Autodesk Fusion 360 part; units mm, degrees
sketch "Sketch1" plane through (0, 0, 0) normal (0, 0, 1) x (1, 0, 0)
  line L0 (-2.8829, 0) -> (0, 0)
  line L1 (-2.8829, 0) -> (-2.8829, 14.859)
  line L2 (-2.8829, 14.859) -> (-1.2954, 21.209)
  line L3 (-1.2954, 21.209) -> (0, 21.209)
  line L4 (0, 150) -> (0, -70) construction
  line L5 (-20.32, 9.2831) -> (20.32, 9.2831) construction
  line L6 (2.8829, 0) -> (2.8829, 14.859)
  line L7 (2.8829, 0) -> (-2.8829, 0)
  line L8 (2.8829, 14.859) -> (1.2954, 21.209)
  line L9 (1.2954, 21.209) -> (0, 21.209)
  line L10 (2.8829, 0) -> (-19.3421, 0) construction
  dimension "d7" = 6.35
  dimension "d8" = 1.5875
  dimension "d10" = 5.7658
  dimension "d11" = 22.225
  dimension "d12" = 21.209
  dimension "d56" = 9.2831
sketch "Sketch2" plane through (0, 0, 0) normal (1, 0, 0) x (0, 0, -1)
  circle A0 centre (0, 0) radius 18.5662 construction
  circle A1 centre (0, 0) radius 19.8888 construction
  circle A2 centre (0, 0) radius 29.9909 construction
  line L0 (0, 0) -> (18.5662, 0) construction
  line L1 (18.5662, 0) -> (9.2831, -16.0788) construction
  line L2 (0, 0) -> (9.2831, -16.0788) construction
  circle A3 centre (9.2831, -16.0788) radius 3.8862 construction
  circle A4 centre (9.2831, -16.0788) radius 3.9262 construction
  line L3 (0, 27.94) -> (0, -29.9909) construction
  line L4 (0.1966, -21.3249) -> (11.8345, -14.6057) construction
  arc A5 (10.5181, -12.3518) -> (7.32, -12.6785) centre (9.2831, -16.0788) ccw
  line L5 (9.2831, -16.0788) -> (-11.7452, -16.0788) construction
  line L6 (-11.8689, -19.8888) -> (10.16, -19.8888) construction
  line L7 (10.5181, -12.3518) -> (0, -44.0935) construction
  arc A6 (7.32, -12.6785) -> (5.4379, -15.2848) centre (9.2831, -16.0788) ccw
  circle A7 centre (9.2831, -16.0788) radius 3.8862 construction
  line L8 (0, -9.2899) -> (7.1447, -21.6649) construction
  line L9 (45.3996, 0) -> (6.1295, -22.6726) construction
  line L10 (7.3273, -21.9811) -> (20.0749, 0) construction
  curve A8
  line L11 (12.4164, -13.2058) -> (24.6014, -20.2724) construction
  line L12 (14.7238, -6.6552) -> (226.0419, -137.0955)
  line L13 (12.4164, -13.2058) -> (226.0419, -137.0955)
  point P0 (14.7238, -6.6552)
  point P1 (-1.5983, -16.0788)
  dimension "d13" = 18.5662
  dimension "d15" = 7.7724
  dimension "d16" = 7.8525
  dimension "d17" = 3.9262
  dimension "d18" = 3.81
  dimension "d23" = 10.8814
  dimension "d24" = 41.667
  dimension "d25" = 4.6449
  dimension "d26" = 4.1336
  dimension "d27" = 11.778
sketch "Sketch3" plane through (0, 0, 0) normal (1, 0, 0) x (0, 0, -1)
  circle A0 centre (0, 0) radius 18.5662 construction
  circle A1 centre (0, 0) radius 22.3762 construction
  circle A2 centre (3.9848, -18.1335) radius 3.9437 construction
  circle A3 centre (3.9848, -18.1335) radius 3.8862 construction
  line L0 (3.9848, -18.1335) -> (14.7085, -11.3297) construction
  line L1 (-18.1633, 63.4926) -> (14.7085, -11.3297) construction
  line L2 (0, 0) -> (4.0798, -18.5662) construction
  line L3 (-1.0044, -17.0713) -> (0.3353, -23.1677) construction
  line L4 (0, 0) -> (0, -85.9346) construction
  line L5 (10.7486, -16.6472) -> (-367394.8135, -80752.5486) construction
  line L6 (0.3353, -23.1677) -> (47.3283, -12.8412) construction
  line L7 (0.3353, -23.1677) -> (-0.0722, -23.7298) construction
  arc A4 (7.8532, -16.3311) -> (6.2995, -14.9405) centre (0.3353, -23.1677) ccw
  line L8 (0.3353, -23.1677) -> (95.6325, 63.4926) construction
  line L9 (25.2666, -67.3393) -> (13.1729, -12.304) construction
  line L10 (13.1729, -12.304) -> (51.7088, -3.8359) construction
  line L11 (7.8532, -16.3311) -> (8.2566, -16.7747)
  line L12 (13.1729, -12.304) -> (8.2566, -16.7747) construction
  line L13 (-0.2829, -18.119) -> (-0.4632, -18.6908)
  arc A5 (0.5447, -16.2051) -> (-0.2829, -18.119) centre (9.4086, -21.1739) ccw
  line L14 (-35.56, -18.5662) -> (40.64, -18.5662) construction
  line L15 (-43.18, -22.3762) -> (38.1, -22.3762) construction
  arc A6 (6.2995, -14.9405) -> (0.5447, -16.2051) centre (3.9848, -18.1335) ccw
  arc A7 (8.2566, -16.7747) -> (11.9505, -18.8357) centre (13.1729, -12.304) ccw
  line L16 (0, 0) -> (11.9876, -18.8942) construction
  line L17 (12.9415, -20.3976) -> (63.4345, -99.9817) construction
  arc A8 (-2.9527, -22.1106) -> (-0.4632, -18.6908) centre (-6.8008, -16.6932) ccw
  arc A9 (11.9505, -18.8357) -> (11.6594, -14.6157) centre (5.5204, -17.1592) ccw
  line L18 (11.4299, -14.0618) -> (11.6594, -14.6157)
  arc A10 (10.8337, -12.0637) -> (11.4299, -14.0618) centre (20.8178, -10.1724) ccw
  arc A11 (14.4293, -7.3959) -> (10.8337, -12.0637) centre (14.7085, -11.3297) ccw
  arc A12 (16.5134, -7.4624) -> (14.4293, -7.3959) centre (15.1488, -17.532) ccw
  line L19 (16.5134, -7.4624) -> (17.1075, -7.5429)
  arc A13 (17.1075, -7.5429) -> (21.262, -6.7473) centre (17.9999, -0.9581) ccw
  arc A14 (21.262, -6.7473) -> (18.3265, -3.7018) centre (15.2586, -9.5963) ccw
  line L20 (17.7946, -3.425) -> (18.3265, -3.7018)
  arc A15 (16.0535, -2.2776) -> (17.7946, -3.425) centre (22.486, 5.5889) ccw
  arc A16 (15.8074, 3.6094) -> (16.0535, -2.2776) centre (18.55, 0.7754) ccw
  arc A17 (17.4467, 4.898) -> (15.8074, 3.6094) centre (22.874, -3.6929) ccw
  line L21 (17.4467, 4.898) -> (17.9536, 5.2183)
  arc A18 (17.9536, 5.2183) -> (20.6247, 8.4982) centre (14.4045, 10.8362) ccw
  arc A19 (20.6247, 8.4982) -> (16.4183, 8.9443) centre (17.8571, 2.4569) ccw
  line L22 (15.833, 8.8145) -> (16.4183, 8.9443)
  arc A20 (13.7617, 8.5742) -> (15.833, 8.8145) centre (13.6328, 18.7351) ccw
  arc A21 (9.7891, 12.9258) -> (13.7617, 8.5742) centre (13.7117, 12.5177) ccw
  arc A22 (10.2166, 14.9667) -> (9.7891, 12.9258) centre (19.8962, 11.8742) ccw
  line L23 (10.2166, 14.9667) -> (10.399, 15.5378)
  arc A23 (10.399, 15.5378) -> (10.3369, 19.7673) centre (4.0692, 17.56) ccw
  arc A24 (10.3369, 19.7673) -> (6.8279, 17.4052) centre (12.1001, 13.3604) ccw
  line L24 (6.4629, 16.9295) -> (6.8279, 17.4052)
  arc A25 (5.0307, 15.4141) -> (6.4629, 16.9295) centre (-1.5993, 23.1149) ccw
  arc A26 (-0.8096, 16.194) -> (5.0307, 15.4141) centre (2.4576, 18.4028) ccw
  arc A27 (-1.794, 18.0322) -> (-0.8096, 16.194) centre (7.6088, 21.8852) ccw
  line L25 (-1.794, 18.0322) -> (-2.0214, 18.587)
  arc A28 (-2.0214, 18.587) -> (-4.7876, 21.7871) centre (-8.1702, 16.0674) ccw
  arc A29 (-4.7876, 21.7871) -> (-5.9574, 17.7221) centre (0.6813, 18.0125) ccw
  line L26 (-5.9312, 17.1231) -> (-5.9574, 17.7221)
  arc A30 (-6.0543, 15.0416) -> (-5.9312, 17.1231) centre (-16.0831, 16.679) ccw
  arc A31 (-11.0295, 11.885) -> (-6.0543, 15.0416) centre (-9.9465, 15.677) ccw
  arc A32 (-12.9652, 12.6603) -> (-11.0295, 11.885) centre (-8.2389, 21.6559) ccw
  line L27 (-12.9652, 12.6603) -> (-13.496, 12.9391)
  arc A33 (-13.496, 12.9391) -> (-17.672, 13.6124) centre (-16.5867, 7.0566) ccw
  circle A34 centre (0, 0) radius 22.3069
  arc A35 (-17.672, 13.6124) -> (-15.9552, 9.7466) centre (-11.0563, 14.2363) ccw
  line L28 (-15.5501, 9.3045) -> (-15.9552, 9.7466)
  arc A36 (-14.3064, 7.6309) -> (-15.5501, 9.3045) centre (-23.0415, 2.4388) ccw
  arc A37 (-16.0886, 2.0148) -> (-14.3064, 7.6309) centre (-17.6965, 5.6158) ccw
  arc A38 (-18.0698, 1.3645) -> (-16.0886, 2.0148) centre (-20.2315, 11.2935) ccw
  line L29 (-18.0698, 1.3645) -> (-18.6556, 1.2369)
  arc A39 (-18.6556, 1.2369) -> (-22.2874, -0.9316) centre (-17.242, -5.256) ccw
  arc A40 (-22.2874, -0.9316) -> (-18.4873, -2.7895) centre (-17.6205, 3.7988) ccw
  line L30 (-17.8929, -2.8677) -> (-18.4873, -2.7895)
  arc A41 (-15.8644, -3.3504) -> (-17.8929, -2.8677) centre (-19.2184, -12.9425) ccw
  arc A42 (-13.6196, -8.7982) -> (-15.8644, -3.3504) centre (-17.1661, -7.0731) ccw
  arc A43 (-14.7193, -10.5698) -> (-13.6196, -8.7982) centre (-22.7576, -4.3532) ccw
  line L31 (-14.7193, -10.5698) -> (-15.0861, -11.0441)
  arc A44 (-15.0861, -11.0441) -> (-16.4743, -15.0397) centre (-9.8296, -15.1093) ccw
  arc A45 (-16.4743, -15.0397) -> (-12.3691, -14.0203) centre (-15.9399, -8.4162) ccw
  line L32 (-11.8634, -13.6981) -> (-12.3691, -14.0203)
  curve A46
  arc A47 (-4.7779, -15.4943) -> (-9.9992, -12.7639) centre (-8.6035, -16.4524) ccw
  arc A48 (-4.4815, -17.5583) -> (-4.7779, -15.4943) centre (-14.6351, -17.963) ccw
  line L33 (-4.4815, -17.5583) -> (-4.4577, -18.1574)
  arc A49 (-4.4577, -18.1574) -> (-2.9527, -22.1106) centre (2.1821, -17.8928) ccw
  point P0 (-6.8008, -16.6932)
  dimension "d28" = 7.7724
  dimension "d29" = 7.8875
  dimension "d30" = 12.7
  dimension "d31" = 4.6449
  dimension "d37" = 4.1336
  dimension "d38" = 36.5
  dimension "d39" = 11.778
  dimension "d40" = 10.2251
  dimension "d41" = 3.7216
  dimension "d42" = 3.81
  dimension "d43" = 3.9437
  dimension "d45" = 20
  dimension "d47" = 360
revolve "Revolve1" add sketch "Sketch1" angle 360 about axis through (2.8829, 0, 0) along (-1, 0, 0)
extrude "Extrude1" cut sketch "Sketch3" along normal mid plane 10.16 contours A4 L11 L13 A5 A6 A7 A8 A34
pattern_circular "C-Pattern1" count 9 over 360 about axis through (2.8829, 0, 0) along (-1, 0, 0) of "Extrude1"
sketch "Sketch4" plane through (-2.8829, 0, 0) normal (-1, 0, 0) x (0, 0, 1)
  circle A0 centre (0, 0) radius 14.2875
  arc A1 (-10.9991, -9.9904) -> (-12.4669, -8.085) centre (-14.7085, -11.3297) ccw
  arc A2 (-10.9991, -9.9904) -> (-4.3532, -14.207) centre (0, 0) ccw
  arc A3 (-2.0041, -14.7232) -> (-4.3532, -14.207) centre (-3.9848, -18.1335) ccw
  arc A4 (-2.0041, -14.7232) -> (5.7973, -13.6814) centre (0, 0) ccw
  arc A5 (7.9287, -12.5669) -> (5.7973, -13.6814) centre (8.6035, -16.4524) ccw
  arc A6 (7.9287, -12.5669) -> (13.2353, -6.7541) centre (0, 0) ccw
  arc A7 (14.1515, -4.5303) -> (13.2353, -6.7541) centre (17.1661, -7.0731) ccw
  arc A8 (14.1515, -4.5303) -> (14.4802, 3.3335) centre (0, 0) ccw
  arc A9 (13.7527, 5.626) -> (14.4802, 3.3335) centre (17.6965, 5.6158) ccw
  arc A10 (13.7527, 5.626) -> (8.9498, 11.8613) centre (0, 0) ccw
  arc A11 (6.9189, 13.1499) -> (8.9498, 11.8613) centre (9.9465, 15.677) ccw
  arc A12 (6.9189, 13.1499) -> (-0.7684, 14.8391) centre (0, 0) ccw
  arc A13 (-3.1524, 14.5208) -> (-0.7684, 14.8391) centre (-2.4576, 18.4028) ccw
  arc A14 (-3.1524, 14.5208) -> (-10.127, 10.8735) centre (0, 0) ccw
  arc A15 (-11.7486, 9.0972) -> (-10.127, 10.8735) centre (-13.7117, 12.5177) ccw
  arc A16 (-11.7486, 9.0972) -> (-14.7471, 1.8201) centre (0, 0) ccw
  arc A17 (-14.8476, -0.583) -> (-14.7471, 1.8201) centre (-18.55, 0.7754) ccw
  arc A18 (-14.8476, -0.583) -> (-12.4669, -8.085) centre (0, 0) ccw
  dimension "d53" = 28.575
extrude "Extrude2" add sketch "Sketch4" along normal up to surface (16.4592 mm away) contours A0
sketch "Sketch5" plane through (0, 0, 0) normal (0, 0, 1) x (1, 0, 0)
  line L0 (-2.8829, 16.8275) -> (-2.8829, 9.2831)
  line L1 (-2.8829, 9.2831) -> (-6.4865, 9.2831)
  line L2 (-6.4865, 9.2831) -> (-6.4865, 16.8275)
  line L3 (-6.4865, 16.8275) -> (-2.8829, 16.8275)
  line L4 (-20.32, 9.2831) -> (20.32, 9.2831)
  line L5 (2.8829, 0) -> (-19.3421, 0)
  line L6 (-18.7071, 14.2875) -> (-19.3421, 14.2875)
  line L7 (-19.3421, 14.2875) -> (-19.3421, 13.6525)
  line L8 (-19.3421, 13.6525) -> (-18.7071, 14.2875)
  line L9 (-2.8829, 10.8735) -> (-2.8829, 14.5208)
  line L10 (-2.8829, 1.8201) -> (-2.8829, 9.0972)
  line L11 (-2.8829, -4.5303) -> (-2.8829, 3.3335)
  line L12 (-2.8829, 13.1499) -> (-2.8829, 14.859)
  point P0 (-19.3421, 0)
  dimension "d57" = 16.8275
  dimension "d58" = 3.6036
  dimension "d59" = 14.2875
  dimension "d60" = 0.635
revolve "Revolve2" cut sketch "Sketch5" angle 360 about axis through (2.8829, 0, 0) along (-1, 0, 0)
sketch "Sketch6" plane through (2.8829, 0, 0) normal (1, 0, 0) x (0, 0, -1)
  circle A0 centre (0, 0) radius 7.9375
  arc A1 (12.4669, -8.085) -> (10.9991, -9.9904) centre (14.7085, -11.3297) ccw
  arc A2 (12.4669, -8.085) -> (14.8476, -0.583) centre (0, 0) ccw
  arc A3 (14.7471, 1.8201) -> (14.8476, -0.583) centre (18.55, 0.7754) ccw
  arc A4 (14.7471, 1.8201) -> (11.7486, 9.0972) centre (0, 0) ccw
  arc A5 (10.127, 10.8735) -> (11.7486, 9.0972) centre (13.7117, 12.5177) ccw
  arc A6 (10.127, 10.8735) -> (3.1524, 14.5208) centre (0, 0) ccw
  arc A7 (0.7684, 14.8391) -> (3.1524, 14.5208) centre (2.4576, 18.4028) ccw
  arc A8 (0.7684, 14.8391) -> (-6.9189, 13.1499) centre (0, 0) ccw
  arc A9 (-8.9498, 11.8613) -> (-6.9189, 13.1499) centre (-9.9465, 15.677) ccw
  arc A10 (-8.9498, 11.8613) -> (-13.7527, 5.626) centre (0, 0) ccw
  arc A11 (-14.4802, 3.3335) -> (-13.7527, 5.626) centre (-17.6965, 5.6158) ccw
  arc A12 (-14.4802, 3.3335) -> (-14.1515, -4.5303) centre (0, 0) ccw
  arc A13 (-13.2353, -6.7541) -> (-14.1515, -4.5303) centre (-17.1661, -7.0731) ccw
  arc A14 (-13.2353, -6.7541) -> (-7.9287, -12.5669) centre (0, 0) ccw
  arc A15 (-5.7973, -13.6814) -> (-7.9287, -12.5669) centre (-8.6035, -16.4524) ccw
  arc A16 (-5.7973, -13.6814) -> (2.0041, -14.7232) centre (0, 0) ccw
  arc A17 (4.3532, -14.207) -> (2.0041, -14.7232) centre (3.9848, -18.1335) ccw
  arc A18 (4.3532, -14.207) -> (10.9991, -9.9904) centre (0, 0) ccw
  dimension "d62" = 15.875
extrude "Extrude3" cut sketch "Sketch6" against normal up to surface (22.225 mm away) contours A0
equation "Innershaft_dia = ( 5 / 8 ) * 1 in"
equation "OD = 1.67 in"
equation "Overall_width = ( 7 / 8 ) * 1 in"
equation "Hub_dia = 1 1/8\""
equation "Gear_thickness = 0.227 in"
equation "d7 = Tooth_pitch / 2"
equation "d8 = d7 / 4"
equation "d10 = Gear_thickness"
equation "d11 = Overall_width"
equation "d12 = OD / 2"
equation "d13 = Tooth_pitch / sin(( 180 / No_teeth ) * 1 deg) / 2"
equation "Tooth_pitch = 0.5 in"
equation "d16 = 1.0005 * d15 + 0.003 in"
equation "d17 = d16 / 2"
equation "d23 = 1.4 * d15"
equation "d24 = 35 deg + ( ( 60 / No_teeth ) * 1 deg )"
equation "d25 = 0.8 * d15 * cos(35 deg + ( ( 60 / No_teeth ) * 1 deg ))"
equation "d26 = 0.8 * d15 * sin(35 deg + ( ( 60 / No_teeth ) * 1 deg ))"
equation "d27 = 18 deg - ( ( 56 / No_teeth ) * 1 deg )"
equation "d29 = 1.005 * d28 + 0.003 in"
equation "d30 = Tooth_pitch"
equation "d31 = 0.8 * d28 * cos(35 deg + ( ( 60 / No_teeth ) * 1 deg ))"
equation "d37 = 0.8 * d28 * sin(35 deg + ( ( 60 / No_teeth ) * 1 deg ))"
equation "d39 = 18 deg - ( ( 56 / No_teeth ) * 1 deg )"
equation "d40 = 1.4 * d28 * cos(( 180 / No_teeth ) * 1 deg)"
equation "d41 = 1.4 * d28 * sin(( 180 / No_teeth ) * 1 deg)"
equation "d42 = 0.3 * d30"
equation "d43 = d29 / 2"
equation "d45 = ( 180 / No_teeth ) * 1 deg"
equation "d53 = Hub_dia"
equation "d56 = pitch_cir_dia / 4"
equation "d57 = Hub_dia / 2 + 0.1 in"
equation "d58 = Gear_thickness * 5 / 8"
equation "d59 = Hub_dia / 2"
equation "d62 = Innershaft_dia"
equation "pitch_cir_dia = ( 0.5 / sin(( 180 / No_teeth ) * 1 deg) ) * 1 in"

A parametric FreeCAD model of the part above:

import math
import FreeCAD as App
import Part
import Sketcher
Q = App.Units.Quantity


def add_polygon(sketch, points):
    """Adds a closed chain of lines whose ends are joined by coincident constraints."""
    first, n = sketch.GeometryCount, len(points)
    for a, b in zip(points, points[1:] + points[:1]):
        sketch.addGeometry(Part.LineSegment(App.Vector(*a, 0), App.Vector(*b, 0)), False)
    for i in range(n):
        sketch.addConstraint(Sketcher.Constraint("Coincident", first + i, 2, first + (i + 1) % n, 1))

doc = App.newDocument("Part")
body = doc.addObject("PartDesign::Body", "Body")

sketch1 = body.newObject("Sketcher::SketchObject", "Sketch")
sketch1.AttachmentSupport = (doc.getObject("XY_Plane"), [""])
sketch1.MapMode = "FlatFace"
add_polygon(sketch1, [(-2.9, 14.9), (-2.9, 0), (2.9, 0), (2.9, 14.9), (1.3, 21.2), (-1.3, 21.2)])
sketch1.addConstraint([
    Sketcher.Constraint("Vertical", 0),
    Sketcher.Constraint("Horizontal", 1),
    Sketcher.Constraint("Vertical", 2),
    Sketcher.Constraint("Horizontal", 4),
    Sketcher.Constraint("Symmetric", 0, 2, 1, 2, -1, 1),
    Sketcher.Constraint("Horizontal", 2, 2, 5, 2),
    Sketcher.Constraint("Equal", 3, 5),
    Sketcher.Constraint("DistanceX", 1, 1, 1, 2, Q("0.227 in")),
    Sketcher.Constraint("DistanceY", 2, 2, 3, 2, Q("0.25 in")),
    Sketcher.Constraint("DistanceY", -1, 1, 3, 2, Q("0.835 in")),
    Sketcher.Constraint("DistanceX", 3, 2, 2, 2, Q("0.0625 in")),
])
revolution = body.newObject("PartDesign::Revolution", "Revolution")
revolution.Profile = sketch1
revolution.ReferenceAxis = (sketch1, ["H_Axis"])
revolution.Angle = 360

sketch2 = body.newObject("Sketcher::SketchObject", "Sketch001")
sketch2.AttachmentSupport = (doc.getObject("YZ_Plane"), [""])
sketch2.MapMode = "FlatFace"
sketch2.addGeometry([
    Part.LineSegment(App.Vector(-16.7747, -8.2566, 0), App.Vector(-16.3311, -7.8532, 0)),
    Part.ArcOfCircle(Part.Circle(App.Vector(-23.169628, -0.333388, 0), App.Vector(0, 0, 1), 10.164302), math.radians(-47.716574), math.radians(-35.942089)),
    Part.ArcOfCircle(Part.Circle(App.Vector(-18.1335, -3.9848, 0), App.Vector(0, 0, 1), 3.94374), math.radians(-35.939465), math.radians(60.726531)),
    Part.ArcOfCircle(Part.Circle(App.Vector(-21.1739, -9.4086, 0), App.Vector(0, 0, 1), 10.161579), math.radians(60.726497), math.radians(72.5044)),
    Part.LineSegment(App.Vector(-18.119, 0.2829, 0), App.Vector(-18.6908, 0.4632, 0)),
    Part.ArcOfCircle(Part.Circle(App.Vector(-16.6932, 6.8008, 0), App.Vector(0, 0, 1), 6.645005), math.radians(-144.612973), math.radians(-107.494757)),
    Part.ArcOfCircle(Part.Circle(App.Vector(0, 0, 0), App.Vector(0, 0, 1), 22.3069), math.radians(172.393594), math.radians(212.393497)),
    Part.ArcOfCircle(Part.Circle(App.Vector(-12.304, -13.1729, 0), App.Vector(0, 0, 1), 6.645086), math.radians(132.282215), math.radians(169.399783)),
], False)
sketch2.addConstraint([
    Sketcher.Constraint("Coincident", 0, 2, 1, 1),
    Sketcher.Constraint("Coincident", 1, 2, 2, 1),
    Sketcher.Constraint("Coincident", 2, 2, 3, 1),
    Sketcher.Constraint("Coincident", 3, 2, 4, 1),
    Sketcher.Constraint("Coincident", 4, 2, 5, 2),
    Sketcher.Constraint("Coincident", 5, 1, 6, 1),
    Sketcher.Constraint("Coincident", 6, 2, 7, 2),
    Sketcher.Constraint("Coincident", 7, 1, 0, 1),
    Sketcher.Constraint("Coincident", 6, 3, -1, 1),
    Sketcher.Constraint("Radius", 2, 3.9437),
    Sketcher.Constraint("Radius", 1, 10.1643),
    Sketcher.Constraint("Radius", 3, 10.1616),
    Sketcher.Constraint("Radius", 5, 6.645),
    Sketcher.Constraint("Radius", 6, 22.307),
    Sketcher.Constraint("Radius", 7, 6.645),
    Sketcher.Constraint("DistanceY", 1, 2, -1, 1, Q("0.248 in")),
    Sketcher.Constraint("DistanceX", 2, 2, -1, 1, Q("0.638 in")),
    Sketcher.Constraint("DistanceY", 4, 2, 5, 1, Q("0.098 in")),
    Sketcher.Constraint("Distance", 0, Q("0.0236 in")),
    Sketcher.Constraint("Distance", 4, Q("0.0236 in")),
    Sketcher.Constraint("DistanceX", 1, 3, -1, 1, Q("0.9122 in")),
    Sketcher.Constraint("DistanceX", 7, 3, -1, 1, Q("0.4844 in")),
    Sketcher.Constraint("DistanceX", 1, 2, -1, 1, Q("0.5882 in")),
    Sketcher.Constraint("DistanceX", 5, 1, -1, 1, Q("0.8705 in")),
    Sketcher.Constraint("DistanceY", 6, 2, -1, 1, Q("0.4705 in")),
    Sketcher.Constraint("DistanceX", 3, 3, 2, 3, Q("0.1197 in")),
    Sketcher.Constraint("DistanceY", 3, 3, 1, 3, Q("0.3573 in")),
    Sketcher.Constraint("DistanceX", 2, 3, 5, 3, Q("0.0567 in")),
    Sketcher.Constraint("DistanceY", 0, 2, 2, 3, Q("0.1523 in")),
])
pocket1 = body.newObject("PartDesign::Pocket", "Pocket")
pocket1.Profile = sketch2
pocket1.Length = Q("0.4 in")
pocket1.Midplane = True
doc.recompute()

polarpattern = body.newObject("PartDesign::PolarPattern", "PolarPattern")
polarpattern.Originals = [pocket1]
polarpattern.Axis = (doc.getObject("X_Axis"), [""])
polarpattern.Angle = 360
polarpattern.Occurrences = 9
body.Tip = polarpattern

sketch3 = body.newObject("Sketcher::SketchObject", "Sketch002")
sketch3.AttachmentSupport = (doc.getObject("YZ_Plane"), [""])
sketch3.MapMode = "FlatFace"
sketch3.AttachmentOffset = App.Placement(App.Vector(0, 0, -0.1135 * 25.4), App.Rotation())
sketch3.addGeometry(Part.Circle(App.Vector(0, 0, 0), App.Vector(0, 0, 1), 14), False)
sketch3.addConstraint([
    Sketcher.Constraint("Coincident", 0, 3, -1, 1),
    Sketcher.Constraint("Diameter", 0, Q("1.125 in")),
])
pad1 = body.newObject("PartDesign::Pad", "Pad")
pad1.Profile = sketch3
pad1.Length = Q("0.648 in")
pad1.Reversed = True

sketch4 = body.newObject("Sketcher::SketchObject", "Sketch003")
sketch4.AttachmentSupport = (doc.getObject("XY_Plane"), [""])
sketch4.MapMode = "FlatFace"
add_polygon(sketch4, [(-2.9, 9.3), (-2.9, 16.8), (-6.5, 16.8), (-6.5, 9.3)])
add_polygon(sketch4, [(-19.3, 13.7), (-18.7, 14.3), (-19.3, 14.3)])
sketch4.addConstraint([
    Sketcher.Constraint("Vertical", 0),
    Sketcher.Constraint("Horizontal", 1),
    Sketcher.Constraint("Vertical", 2),
    Sketcher.Constraint("Horizontal", 3),
    Sketcher.Constraint("Horizontal", 5),
    Sketcher.Constraint("Vertical", 6),
    Sketcher.Constraint("Equal", 5, 6),
    Sketcher.Constraint("DistanceX", 5, 2, 5, 1, Q("0.025 in")),
    Sketcher.Constraint("DistanceY", -1, 1, 4, 2, Q("0.5625 in")),
    Sketcher.Constraint("DistanceX", 1, 2, 1, 1, 3.6036),
    Sketcher.Constraint("DistanceY", -1, 1, 0, 2, Q("0.6625 in")),
    Sketcher.Constraint("DistanceX", 4, 2, 0, 2, Q("0.623 in")),
    Sketcher.Constraint("DistanceY", 0, 1, 0, 2, 7.5444),
    Sketcher.Constraint("DistanceX", 0, 2, -1, 1, Q("0.1135 in")),
])
groove = body.newObject("PartDesign::Groove", "Groove")
groove.Profile = sketch4
groove.ReferenceAxis = (sketch4, ["H_Axis"])
groove.Angle = 360

sketch5 = body.newObject("Sketcher::SketchObject", "Sketch004")
sketch5.AttachmentSupport = (doc.getObject("YZ_Plane"), [""])
sketch5.MapMode = "FlatFace"
sketch5.AttachmentOffset = App.Placement(App.Vector(0, 0, 0.1135 * 25.4), App.Rotation())
sketch5.addGeometry(Part.Circle(App.Vector(0, 0, 0), App.Vector(0, 0, 1), 8), False)
sketch5.addConstraint([
    Sketcher.Constraint("Coincident", 0, 3, -1, 1),
    Sketcher.Constraint("Diameter", 0, Q("0.625 in")),
])
pocket2 = body.newObject("PartDesign::Pocket", "Pocket001")
pocket2.Profile = sketch5
pocket2.Length = Q("0.875 in")

doc.recompute()
